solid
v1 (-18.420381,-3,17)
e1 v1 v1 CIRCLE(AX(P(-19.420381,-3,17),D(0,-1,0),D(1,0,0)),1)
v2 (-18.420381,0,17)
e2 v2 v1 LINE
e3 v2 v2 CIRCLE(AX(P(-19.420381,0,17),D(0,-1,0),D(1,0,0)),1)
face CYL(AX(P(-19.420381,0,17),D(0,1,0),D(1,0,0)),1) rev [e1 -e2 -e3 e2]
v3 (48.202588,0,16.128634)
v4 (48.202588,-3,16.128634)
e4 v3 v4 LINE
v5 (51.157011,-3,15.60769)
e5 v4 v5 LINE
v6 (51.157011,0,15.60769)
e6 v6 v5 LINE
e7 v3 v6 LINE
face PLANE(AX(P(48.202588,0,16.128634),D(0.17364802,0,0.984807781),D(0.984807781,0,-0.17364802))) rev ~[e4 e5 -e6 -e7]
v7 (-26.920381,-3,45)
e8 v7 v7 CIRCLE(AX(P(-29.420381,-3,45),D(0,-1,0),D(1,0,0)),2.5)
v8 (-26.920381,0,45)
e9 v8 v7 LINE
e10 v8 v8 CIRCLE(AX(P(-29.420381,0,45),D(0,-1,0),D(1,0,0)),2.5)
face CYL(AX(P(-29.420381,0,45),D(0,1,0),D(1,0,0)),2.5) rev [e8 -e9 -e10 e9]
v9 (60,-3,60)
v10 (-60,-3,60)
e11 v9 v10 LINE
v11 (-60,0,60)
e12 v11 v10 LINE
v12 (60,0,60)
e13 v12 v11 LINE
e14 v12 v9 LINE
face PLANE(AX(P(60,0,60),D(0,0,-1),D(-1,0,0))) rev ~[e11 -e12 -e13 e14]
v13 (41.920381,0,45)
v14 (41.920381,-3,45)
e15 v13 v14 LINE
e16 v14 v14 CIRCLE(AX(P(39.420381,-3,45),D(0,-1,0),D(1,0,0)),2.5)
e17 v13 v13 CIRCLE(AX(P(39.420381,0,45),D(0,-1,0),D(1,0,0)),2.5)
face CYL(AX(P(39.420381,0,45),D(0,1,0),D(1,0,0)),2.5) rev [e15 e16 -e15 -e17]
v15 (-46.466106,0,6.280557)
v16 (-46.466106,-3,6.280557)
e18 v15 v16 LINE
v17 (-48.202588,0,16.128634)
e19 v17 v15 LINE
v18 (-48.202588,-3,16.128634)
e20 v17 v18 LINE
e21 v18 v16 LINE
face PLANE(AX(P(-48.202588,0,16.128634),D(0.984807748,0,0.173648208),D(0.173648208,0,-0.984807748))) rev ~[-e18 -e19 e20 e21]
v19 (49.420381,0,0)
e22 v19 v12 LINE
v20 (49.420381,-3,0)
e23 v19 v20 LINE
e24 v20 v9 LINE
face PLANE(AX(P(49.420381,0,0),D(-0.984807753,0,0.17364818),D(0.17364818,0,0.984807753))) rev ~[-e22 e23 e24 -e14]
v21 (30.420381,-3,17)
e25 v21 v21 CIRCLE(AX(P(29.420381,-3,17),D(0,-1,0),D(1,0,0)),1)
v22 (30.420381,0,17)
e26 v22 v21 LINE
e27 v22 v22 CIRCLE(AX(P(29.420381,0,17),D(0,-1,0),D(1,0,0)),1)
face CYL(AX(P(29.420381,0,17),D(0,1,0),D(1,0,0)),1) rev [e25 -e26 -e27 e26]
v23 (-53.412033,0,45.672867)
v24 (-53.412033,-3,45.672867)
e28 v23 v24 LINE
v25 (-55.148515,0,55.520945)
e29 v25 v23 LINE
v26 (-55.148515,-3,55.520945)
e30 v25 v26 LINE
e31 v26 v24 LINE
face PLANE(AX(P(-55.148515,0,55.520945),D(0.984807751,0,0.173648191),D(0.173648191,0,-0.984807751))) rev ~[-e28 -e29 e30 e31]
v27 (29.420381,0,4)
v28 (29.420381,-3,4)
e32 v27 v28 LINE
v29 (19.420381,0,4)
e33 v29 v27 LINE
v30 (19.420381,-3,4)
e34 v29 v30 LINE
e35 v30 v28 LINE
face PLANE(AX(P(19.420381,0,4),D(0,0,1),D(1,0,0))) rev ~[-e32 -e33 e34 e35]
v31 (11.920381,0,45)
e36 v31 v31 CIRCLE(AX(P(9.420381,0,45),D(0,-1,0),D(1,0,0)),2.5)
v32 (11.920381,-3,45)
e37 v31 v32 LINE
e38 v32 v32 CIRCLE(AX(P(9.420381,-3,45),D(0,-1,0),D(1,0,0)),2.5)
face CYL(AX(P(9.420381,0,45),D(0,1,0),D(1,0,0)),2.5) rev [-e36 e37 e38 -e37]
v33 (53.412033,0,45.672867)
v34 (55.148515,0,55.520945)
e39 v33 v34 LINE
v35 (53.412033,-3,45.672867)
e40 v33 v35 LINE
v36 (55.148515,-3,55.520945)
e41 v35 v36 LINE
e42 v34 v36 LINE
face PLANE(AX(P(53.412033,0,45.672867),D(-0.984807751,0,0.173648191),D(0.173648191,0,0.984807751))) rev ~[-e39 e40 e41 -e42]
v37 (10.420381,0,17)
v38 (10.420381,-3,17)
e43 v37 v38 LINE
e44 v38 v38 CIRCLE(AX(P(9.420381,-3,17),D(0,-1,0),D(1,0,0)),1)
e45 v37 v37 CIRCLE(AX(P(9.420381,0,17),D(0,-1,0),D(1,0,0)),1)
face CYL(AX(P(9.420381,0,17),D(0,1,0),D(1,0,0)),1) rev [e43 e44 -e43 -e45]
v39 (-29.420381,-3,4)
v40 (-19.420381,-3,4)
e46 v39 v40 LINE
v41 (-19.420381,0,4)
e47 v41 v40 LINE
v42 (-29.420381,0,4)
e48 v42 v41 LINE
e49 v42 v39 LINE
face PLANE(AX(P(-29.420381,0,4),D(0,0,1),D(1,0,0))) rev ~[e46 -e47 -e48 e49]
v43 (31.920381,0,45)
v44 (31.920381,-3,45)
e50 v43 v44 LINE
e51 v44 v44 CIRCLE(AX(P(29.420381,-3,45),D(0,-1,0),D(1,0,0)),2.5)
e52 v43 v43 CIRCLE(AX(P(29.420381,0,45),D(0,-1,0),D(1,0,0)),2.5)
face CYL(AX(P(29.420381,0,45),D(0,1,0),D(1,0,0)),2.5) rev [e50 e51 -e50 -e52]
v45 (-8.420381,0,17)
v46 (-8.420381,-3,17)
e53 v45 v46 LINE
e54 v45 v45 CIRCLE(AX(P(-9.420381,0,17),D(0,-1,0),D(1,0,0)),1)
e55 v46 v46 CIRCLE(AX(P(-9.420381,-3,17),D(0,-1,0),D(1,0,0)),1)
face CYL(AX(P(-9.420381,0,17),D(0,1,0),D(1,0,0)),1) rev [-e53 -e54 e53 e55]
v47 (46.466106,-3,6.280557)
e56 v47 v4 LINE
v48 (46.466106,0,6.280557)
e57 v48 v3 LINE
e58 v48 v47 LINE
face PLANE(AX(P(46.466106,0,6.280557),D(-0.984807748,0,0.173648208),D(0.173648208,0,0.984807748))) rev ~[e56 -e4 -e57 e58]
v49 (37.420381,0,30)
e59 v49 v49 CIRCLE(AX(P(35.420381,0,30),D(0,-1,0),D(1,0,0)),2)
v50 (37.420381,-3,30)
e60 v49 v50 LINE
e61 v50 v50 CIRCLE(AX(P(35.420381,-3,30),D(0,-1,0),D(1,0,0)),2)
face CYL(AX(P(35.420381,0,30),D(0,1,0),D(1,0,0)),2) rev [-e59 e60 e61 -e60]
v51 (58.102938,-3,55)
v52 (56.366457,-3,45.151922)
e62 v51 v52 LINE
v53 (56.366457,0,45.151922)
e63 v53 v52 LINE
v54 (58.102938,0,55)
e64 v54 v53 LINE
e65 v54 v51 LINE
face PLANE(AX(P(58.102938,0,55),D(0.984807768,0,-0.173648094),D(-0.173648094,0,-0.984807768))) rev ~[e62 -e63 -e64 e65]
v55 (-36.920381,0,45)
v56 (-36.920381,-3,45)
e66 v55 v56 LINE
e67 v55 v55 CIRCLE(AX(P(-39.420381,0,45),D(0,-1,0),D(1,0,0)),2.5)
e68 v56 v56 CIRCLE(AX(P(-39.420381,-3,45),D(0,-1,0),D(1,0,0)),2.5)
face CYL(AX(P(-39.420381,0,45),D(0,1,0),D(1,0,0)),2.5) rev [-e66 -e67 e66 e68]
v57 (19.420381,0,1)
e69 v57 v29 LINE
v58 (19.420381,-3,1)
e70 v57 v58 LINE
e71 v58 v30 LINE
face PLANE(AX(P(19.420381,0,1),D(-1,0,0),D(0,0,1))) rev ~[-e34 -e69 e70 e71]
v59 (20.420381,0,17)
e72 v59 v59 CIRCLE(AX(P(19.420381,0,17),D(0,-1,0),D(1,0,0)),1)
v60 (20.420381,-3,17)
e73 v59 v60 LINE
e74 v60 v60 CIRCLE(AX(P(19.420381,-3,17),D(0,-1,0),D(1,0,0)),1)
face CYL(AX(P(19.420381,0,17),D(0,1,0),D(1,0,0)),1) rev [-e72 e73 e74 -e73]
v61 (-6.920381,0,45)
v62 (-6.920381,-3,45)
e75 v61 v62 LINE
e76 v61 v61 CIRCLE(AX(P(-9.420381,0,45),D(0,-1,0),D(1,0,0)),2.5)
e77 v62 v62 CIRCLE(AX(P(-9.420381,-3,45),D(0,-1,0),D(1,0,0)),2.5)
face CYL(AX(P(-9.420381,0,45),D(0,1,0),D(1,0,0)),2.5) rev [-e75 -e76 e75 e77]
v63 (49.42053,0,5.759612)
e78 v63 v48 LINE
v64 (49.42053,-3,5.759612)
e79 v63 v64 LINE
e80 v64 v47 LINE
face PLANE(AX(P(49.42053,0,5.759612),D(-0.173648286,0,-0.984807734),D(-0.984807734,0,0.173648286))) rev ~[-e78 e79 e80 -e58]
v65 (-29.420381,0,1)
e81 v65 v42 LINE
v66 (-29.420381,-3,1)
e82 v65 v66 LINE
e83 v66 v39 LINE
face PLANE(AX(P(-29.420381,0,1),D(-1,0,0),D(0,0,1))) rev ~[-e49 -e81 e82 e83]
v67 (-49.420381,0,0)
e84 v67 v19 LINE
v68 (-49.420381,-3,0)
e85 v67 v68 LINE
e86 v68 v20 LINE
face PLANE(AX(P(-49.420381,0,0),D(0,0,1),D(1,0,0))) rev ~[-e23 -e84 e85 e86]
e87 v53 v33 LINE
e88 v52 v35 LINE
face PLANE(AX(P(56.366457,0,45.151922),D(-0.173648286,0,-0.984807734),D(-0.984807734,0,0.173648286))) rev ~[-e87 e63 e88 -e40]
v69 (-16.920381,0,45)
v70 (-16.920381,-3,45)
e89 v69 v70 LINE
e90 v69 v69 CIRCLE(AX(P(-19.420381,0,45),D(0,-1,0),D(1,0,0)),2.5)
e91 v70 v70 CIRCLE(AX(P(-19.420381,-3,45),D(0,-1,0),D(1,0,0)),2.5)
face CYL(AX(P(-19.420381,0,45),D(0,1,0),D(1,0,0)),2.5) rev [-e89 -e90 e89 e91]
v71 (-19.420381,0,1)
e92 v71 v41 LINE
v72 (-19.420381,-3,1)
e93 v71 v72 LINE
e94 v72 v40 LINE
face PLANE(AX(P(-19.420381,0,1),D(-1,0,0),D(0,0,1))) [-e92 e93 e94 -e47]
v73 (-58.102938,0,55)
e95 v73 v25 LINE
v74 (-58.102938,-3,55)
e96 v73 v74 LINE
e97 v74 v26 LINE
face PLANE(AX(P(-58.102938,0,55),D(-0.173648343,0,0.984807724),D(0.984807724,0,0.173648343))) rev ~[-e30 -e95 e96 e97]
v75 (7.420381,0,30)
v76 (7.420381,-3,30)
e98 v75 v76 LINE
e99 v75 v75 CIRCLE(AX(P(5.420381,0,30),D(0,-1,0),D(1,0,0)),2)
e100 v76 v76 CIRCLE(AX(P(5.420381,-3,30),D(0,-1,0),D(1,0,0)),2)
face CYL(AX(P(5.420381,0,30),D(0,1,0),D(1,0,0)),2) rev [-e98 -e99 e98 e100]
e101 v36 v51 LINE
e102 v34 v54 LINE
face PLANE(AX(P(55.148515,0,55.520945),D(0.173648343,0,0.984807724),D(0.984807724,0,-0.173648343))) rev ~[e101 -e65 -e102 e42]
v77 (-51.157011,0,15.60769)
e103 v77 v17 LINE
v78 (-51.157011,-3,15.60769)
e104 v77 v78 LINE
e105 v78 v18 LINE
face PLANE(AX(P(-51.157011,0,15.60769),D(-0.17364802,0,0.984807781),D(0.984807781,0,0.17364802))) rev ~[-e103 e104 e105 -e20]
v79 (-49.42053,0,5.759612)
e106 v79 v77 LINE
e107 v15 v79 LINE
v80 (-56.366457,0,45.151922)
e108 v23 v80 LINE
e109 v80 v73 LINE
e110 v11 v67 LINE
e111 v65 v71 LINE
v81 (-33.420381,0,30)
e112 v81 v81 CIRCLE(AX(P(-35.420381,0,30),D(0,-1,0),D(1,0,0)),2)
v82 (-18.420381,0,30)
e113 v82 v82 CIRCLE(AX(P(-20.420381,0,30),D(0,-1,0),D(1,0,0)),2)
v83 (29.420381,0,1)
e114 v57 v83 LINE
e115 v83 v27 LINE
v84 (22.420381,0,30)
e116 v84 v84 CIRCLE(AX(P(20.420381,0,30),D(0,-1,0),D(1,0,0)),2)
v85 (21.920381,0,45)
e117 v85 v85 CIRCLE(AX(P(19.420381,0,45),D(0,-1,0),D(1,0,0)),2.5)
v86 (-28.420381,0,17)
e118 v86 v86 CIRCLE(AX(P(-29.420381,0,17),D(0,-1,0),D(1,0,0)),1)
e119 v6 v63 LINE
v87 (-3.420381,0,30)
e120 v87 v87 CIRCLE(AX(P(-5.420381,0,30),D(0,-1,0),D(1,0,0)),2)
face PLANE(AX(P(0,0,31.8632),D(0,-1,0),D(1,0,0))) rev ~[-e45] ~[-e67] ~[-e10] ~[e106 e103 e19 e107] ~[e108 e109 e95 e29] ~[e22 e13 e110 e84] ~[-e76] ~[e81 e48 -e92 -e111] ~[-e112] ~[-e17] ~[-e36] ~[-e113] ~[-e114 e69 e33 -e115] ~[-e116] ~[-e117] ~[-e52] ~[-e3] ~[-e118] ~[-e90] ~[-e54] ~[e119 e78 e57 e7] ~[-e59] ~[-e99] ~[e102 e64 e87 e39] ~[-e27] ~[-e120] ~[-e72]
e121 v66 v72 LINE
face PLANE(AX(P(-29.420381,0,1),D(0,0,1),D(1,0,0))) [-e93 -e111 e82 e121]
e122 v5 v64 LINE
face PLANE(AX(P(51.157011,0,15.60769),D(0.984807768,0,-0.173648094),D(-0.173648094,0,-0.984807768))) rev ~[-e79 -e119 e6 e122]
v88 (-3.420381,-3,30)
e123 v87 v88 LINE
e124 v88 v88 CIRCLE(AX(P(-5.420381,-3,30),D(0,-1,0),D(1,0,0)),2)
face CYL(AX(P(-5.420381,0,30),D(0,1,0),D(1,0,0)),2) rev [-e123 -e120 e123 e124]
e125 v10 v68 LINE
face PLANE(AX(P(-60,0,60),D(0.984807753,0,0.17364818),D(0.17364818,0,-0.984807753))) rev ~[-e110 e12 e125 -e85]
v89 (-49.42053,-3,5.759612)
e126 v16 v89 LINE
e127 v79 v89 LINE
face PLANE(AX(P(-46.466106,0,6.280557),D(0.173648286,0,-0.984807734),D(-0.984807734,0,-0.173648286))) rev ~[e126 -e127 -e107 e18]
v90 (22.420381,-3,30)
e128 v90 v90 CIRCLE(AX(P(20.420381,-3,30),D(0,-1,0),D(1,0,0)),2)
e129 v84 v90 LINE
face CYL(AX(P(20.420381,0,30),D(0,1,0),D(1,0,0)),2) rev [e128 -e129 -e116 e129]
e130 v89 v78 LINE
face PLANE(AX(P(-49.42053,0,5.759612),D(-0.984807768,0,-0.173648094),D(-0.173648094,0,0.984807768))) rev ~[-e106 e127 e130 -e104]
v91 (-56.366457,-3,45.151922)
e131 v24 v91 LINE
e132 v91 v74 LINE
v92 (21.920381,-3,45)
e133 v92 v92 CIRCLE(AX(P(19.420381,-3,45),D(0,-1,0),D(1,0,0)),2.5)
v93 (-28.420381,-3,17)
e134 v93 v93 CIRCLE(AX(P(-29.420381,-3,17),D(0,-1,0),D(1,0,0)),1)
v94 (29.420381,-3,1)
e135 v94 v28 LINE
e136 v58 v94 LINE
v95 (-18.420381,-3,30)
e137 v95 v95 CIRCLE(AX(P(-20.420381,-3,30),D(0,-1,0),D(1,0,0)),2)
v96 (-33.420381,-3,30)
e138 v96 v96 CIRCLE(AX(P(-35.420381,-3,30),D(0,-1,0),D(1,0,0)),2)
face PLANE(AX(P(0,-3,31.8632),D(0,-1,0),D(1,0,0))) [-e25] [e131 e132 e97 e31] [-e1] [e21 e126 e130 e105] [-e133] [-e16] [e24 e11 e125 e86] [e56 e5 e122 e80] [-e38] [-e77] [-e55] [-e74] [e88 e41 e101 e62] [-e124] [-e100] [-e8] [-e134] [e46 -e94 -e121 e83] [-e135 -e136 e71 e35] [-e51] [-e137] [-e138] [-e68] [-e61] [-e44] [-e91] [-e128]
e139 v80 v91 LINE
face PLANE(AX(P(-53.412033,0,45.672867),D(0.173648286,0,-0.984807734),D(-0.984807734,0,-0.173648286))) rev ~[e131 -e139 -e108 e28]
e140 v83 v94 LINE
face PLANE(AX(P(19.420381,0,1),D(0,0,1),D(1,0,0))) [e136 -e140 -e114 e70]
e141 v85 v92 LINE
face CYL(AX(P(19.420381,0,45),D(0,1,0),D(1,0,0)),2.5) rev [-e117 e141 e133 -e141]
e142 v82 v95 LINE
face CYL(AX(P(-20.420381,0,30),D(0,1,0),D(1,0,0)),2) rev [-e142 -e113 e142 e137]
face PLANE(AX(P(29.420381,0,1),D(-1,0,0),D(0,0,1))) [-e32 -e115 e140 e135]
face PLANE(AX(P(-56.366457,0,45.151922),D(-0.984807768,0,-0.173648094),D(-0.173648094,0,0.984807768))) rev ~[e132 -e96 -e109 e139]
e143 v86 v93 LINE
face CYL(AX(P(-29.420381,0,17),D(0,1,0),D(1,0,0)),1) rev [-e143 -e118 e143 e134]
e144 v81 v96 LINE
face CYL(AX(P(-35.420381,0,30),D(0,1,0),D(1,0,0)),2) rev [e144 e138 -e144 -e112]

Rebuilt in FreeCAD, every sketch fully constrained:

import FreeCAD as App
import Part
import Sketcher
from FreeCAD import Vector
Q = App.Units.Quantity


def add_polygon(sketch, points):
    """Adds a closed chain of lines whose ends are joined by coincident constraints."""
    first, n = sketch.GeometryCount, len(points)
    for a, b in zip(points, points[1:] + points[:1]):
        sketch.addGeometry(Part.LineSegment(App.Vector(*a, 0), App.Vector(*b, 0)), False)
    for i in range(n):
        sketch.addConstraint(Sketcher.Constraint("Coincident", first + i, 2, first + (i + 1) % n, 1))

doc = App.newDocument("Part")
body = doc.addObject("PartDesign::Body", "Body")

sketch1 = body.newObject("Sketcher::SketchObject", "Sketch")
sketch1.AttachmentSupport = (doc.getObject("XZ_Plane"), [""])
sketch1.MapMode = "FlatFace"
add_polygon(sketch1, [(-60, 60), (-49.4, 0), (49.4, 0), (60, 60)])
add_polygon(sketch1, [(-46.5, 6.3), (-49.4, 5.8), (-51.2, 15.6), (-48.2, 16.1)])
add_polygon(sketch1, [(-19.4, 1), (-29.4, 1), (-29.4, 4), (-19.4, 4)])
sketch1.addGeometry(Part.Circle(Vector(-29.4, 17, 0), Vector(0, 0, 1), 1), False)
sketch1.addGeometry(Part.Circle(Vector(-19.4, 17, 0), Vector(0, 0, 1), 1), False)
sketch1.addGeometry(Part.Circle(Vector(-9.4, 17, 0), Vector(0, 0, 1), 1), False)
add_polygon(sketch1, [(29.4, 1), (19.4, 1), (19.4, 4), (29.4, 4)])
add_polygon(sketch1, [(48.2, 16.1), (51.2, 15.6), (49.4, 5.8), (46.5, 6.3)])
sketch1.addGeometry(Part.Circle(Vector(9.4, 17, 0), Vector(0, 0, 1), 1), False)
sketch1.addGeometry(Part.Circle(Vector(19.4, 17, 0), Vector(0, 0, 1), 1), False)
sketch1.addGeometry(Part.Circle(Vector(29.4, 17, 0), Vector(0, 0, 1), 1), False)
sketch1.addGeometry(Part.Circle(Vector(-35.4, 30, 0), Vector(0, 0, 1), 2), False)
sketch1.addGeometry(Part.Circle(Vector(-20.4, 30, 0), Vector(0, 0, 1), 2), False)
sketch1.addGeometry(Part.Circle(Vector(-5.4, 30, 0), Vector(0, 0, 1), 2), False)
sketch1.addGeometry(Part.Circle(Vector(-39.4, 45, 0), Vector(0, 0, 1), 2.5), False)
sketch1.addGeometry(Part.Circle(Vector(-29.4, 45, 0), Vector(0, 0, 1), 2.5), False)
add_polygon(sketch1, [(-53.4, 45.7), (-56.4, 45.2), (-58.1, 55), (-55.1, 55.5)])
sketch1.addGeometry(Part.Circle(Vector(-19.4, 45, 0), Vector(0, 0, 1), 2.5), False)
sketch1.addGeometry(Part.Circle(Vector(-9.4, 45, 0), Vector(0, 0, 1), 2.5), False)
sketch1.addGeometry(Part.Circle(Vector(5.4, 30, 0), Vector(0, 0, 1), 2), False)
sketch1.addGeometry(Part.Circle(Vector(20.4, 30, 0), Vector(0, 0, 1), 2), False)
sketch1.addGeometry(Part.Circle(Vector(35.4, 30, 0), Vector(0, 0, 1), 2), False)
sketch1.addGeometry(Part.Circle(Vector(9.4, 45, 0), Vector(0, 0, 1), 2.5), False)
sketch1.addGeometry(Part.Circle(Vector(19.4, 45, 0), Vector(0, 0, 1), 2.5), False)
sketch1.addGeometry(Part.Circle(Vector(29.4, 45, 0), Vector(0, 0, 1), 2.5), False)
sketch1.addGeometry(Part.Circle(Vector(39.4, 45, 0), Vector(0, 0, 1), 2.5), False)
add_polygon(sketch1, [(58.1, 55), (56.4, 45.2), (53.4, 45.7), (55.1, 55.5)])
sketch1.addConstraint([
    Sketcher.Constraint("Horizontal", 1),
    Sketcher.Constraint("Horizontal", 3),
    Sketcher.Constraint("Horizontal", 8),
    Sketcher.Constraint("Vertical", 9),
    Sketcher.Constraint("Horizontal", 10),
    Sketcher.Constraint("Vertical", 11),
    Sketcher.Constraint("Horizontal", 15),
    Sketcher.Constraint("Vertical", 16),
    Sketcher.Constraint("Horizontal", 17),
    Sketcher.Constraint("Vertical", 18),
    Sketcher.Constraint("Equal", 12, 13),
    Sketcher.Constraint("Equal", 13, 14),
    Sketcher.Constraint("Equal", 14, 23),
    Sketcher.Constraint("Equal", 23, 24),
    Sketcher.Constraint("Equal", 24, 25),
    Sketcher.Constraint("Equal", 26, 27),
    Sketcher.Constraint("Equal", 27, 28),
    Sketcher.Constraint("Equal", 29, 30),
    Sketcher.Constraint("Equal", 30, 35),
    Sketcher.Constraint("Equal", 35, 36),
    Sketcher.Constraint("Equal", 28, 37),
    Sketcher.Constraint("Equal", 37, 38),
    Sketcher.Constraint("Equal", 38, 39),
    Sketcher.Constraint("Equal", 36, 40),
    Sketcher.Constraint("Equal", 40, 41),
    Sketcher.Constraint("Equal", 41, 42),
    Sketcher.Constraint("Equal", 42, 43),
    Sketcher.Constraint("Symmetric", 0, 2, 1, 2, -1, 1),
    Sketcher.Constraint("Symmetric", 14, 3, 23, 3, -2),
    Sketcher.Constraint("Symmetric", 13, 3, 24, 3, -2),
    Sketcher.Constraint("Symmetric", 12, 3, 25, 3, -2),
    Sketcher.Constraint("Symmetric", 28, 3, 37, 3, -2),
    Sketcher.Constraint("Symmetric", 27, 3, 38, 3, -2),
    Sketcher.Constraint("Symmetric", 26, 3, 39, 3, -2),
    Sketcher.Constraint("Symmetric", 36, 3, 40, 3, -2),
    Sketcher.Constraint("Symmetric", 35, 3, 41, 3, -2),
    Sketcher.Constraint("Symmetric", 30, 3, 42, 3, -2),
    Sketcher.Constraint("Symmetric", 29, 3, 43, 3, -2),
    Sketcher.Constraint("Symmetric", 11, 2, 15, 2, -2),
    Sketcher.Constraint("Symmetric", 9, 2, 17, 2, -2),
    Sketcher.Constraint("Symmetric", 5, 2, 19, 2, -2),
    Sketcher.Constraint("Symmetric", 4, 2, 20, 2, -2),
    Sketcher.Constraint("Symmetric", 7, 2, 21, 2, -2),
    Sketcher.Constraint("Symmetric", 6, 2, 22, 2, -2),
    Sketcher.Constraint("Symmetric", 31, 2, 44, 2, -2),
    Sketcher.Constraint("Symmetric", 34, 2, 45, 2, -2),
    Sketcher.Constraint("Symmetric", 33, 2, 46, 2, -2),
    Sketcher.Constraint("Symmetric", 32, 2, 47, 2, -2),
    Sketcher.Constraint("Perpendicular", 0, 4),
    Sketcher.Constraint("Perpendicular", 4, 5),
    Sketcher.Constraint("Perpendicular", 5, 6),
    Sketcher.Constraint("Perpendicular", 6, 7),
    Sketcher.Constraint("Perpendicular", 2, 19),
    Sketcher.Constraint("Perpendicular", 7, 31),
    Sketcher.Constraint("Perpendicular", 31, 32),
    Sketcher.Constraint("Perpendicular", 32, 33),
    Sketcher.Constraint("Perpendicular", 33, 34),
    Sketcher.Constraint("Horizontal", 12, 3, 13, 3),
    Sketcher.Constraint("Horizontal", 13, 3, 14, 3),
    Sketcher.Constraint("Horizontal", 26, 3, 27, 3),
    Sketcher.Constraint("Horizontal", 27, 3, 28, 3),
    Sketcher.Constraint("Horizontal", 29, 3, 30, 3),
    Sketcher.Constraint("Horizontal", 30, 3, 35, 3),
    Sketcher.Constraint("Horizontal", 35, 3, 36, 3),
    Sketcher.Constraint("Vertical", 12, 3, 30, 3),
    Sketcher.Constraint("Vertical", 13, 3, 35, 3),
    Sketcher.Constraint("Vertical", 14, 3, 36, 3),
    Sketcher.Constraint("Vertical", 30, 3, 8, 2),
    Sketcher.Constraint("Vertical", 35, 3, 10, 2),
    Sketcher.Constraint("Equal", 21, 31),
    Sketcher.Constraint("Equal", 22, 32),
    Sketcher.Constraint("Diameter", 12, Q("2 mm")),
    Sketcher.Constraint("Diameter", 26, Q("4 mm")),
    Sketcher.Constraint("Diameter", 29, Q("5 mm")),
    Sketcher.Constraint("DistanceX", 3, 2, 3, 1, Q("120 mm")),
    Sketcher.Constraint("DistanceX", 8, 2, 8, 1, Q("10 mm")),
    Sketcher.Constraint("DistanceY", 9, 1, 9, 2, Q("3 mm")),
    Sketcher.Constraint("Angle", 0, Q("-80 deg")),
    Sketcher.Constraint("Distance", 4, Q("3.000001 mm")),
    Sketcher.Constraint("Distance", 5, Q("10 mm")),
    Sketcher.Constraint("DistanceY", -1, 1, 12, 3, Q("17 mm")),
    Sketcher.Constraint("DistanceY", -1, 1, 26, 3, Q("30 mm")),
    Sketcher.Constraint("DistanceY", -1, 1, 29, 3, Q("45 mm")),
    Sketcher.Constraint("DistanceY", -1, 1, 2, 2, Q("60 mm")),
    Sketcher.Constraint("DistanceY", -1, 1, 8, 2, Q("1 mm")),
    Sketcher.Constraint("DistanceY", -1, 1, 32, 2, Q("55 mm")),
    Sketcher.Constraint("DistanceX", 13, 3, 14, 3, Q("10 mm")),
    Sketcher.Constraint("DistanceX", 26, 3, 12, 3, Q("6 mm")),
    Sketcher.Constraint("DistanceX", 27, 3, 13, 3, Q("1 mm")),
    Sketcher.Constraint("DistanceX", 14, 3, 28, 3, Q("4 mm")),
    Sketcher.Constraint("DistanceX", 29, 3, 26, 3, Q("4 mm")),
    Sketcher.Constraint("DistanceX", 0, 2, 12, 3, Q("20 mm")),
    Sketcher.Constraint("DistanceX", 4, 2, -1, 1, Q("49.42053 mm")),
    Sketcher.Constraint("DistanceY", -1, 1, 4, 2, Q("5.759612 mm")),
    Sketcher.Constraint("DistanceX", 32, 2, -1, 1, Q("58.102938 mm")),
])
pad1 = body.newObject("PartDesign::Pad", "Pad")
pad1.Profile = sketch1
pad1.Length = 3

doc.recompute()
